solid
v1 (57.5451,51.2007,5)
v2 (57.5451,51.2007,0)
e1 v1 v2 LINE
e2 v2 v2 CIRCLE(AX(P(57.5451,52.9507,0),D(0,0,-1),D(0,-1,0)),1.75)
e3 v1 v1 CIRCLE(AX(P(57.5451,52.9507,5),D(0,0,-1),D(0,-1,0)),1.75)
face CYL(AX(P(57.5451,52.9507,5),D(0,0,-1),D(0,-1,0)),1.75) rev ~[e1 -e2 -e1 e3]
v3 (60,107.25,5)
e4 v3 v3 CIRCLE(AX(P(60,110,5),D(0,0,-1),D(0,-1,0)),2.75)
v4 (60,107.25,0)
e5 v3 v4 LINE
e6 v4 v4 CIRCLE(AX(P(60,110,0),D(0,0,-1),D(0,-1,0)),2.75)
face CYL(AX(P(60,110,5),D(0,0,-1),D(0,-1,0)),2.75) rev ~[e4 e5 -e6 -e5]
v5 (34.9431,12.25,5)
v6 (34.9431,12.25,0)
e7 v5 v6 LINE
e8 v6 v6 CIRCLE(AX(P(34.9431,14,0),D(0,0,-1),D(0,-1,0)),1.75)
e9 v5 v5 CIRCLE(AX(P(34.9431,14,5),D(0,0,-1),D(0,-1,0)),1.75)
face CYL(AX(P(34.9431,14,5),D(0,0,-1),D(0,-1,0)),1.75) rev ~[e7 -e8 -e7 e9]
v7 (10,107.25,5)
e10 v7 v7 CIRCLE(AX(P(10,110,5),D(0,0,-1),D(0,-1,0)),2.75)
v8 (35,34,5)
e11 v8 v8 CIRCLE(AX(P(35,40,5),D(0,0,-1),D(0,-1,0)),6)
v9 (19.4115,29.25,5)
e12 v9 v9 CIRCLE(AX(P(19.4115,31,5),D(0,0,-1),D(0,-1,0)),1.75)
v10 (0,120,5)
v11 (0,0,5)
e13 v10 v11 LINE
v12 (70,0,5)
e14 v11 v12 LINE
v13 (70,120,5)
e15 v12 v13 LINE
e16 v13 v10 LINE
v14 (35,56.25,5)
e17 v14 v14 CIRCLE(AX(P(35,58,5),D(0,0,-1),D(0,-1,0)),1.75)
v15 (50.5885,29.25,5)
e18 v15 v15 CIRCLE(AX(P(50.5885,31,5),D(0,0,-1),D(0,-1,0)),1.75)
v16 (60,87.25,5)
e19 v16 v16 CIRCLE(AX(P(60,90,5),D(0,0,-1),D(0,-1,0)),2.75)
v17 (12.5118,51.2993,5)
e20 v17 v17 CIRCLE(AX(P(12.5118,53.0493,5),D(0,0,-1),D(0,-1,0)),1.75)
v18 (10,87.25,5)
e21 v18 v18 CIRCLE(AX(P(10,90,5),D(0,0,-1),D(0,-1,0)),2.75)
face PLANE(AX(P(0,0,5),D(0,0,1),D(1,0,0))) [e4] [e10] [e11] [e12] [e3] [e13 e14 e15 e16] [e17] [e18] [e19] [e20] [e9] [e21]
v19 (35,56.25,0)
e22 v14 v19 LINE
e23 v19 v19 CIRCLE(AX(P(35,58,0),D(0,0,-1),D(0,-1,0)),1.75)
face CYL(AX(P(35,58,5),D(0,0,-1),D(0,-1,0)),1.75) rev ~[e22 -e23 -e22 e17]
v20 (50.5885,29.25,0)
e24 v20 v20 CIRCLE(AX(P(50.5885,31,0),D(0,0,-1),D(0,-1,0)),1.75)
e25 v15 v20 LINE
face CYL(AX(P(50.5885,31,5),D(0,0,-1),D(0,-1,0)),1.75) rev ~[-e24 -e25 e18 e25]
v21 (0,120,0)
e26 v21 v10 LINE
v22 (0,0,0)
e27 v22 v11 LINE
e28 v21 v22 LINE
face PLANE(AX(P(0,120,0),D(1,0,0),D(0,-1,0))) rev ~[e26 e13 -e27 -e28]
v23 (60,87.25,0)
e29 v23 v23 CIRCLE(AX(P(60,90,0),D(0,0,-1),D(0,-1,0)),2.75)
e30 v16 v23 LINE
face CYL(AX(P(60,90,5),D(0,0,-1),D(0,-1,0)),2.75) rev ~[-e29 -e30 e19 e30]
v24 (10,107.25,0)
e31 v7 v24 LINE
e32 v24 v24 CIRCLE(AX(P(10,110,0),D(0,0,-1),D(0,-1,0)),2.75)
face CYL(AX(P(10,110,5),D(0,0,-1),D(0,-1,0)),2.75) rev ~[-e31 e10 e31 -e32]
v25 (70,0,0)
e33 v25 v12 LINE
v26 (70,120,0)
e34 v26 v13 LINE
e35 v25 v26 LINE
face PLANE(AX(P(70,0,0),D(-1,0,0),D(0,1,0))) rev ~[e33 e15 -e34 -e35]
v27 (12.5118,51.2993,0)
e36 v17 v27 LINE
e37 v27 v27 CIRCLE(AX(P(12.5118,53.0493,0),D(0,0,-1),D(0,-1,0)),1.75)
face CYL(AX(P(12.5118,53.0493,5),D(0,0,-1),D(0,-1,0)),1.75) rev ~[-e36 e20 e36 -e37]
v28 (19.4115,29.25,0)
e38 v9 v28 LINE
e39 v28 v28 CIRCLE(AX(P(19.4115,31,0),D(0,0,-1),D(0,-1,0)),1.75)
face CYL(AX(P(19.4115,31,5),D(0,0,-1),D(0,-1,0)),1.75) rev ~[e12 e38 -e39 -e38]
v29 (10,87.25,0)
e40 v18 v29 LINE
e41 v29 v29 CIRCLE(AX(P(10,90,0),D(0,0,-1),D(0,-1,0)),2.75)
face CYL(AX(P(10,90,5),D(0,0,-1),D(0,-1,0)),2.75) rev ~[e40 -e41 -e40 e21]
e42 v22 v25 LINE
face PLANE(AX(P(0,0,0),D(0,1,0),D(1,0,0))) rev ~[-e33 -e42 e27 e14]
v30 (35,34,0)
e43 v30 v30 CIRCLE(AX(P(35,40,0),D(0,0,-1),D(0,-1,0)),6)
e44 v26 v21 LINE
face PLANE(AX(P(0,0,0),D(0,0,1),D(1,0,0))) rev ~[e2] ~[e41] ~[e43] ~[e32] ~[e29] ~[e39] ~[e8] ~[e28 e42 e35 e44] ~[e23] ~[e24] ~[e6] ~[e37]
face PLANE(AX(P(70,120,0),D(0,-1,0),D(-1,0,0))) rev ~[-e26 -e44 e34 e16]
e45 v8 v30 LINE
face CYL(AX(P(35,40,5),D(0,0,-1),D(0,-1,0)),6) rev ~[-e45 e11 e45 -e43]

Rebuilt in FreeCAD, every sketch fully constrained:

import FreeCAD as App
import Part
import Sketcher
from FreeCAD import Vector

doc = App.newDocument("Part")
body = doc.addObject("PartDesign::Body", "Body")

# Sketch on XY plane
sketch1 = body.newObject("Sketcher::SketchObject", "Sketch")
sketch1.AttachmentSupport = (doc.getObject("XY_Plane"), [""])
sketch1.MapMode = "FlatFace"
sketch1.addGeometry(Part.LineSegment(Vector(0, 120, 0), Vector(0, 0, 0)), False)
sketch1.addGeometry(Part.LineSegment(Vector(0, 0, 0), Vector(70, 0, 0)), False)
sketch1.addGeometry(Part.LineSegment(Vector(70, 0, 0), Vector(70, 120, 0)), False)
sketch1.addGeometry(Part.LineSegment(Vector(70, 120, 0), Vector(0, 120, 0)), False)
sketch1.addConstraint(Sketcher.Constraint("Coincident", 0, 2, 1, 1))
sketch1.addConstraint(Sketcher.Constraint("Coincident", 1, 2, 2, 1))
sketch1.addConstraint(Sketcher.Constraint("Coincident", 2, 2, 3, 1))
sketch1.addConstraint(Sketcher.Constraint("Coincident", 3, 2, 0, 1))
sketch1.addConstraint(Sketcher.Constraint("Vertical", 0))
sketch1.addConstraint(Sketcher.Constraint("Horizontal", 1))
sketch1.addConstraint(Sketcher.Constraint("Vertical", 2))
sketch1.addConstraint(Sketcher.Constraint("Horizontal", 3))
sketch1.addConstraint(Sketcher.Constraint("Coincident", 0, 2, -1, 1))
sketch1.addConstraint(Sketcher.Constraint("DistanceX", 1, 1, 1, 2, 70.0))
sketch1.addConstraint(Sketcher.Constraint("DistanceY", 0, 2, 0, 1, 120.0))
pad1 = body.newObject("PartDesign::Pad", "Pad")
pad1.Profile = sketch1
pad1.Length = 5

# Sketch on XY plane
sketch2 = body.newObject("Sketcher::SketchObject", "Sketch001")
sketch2.AttachmentSupport = (doc.getObject("XY_Plane"), [""])
sketch2.MapMode = "FlatFace"
sketch2.AttachmentOffset = App.Placement(Vector(0, 0, 5), App.Rotation())
sketch2.addGeometry(Part.Circle(Vector(35, 40, 0), Vector(0, 0, 1), 6), False)
sketch2.addConstraint(Sketcher.Constraint("Diameter", 0, 12.0))
sketch2.addConstraint(Sketcher.Constraint("DistanceX", -1, 1, 0, 3, 35.0))
sketch2.addConstraint(Sketcher.Constraint("DistanceY", -1, 1, 0, 3, 40.0))
doc.recompute()
hole = body.newObject("PartDesign::Hole", "Hole")
hole.Profile = sketch2
hole.ThreadType = "None"
hole.Diameter = 12
hole.DepthType = "ThroughAll"

# Sketch on XY plane
sketch3 = body.newObject("Sketcher::SketchObject", "Sketch002")
sketch3.AttachmentSupport = (doc.getObject("XY_Plane"), [""])
sketch3.MapMode = "FlatFace"
sketch3.AttachmentOffset = App.Placement(Vector(0, 0, 5), App.Rotation())
sketch3.addGeometry(Part.Circle(Vector(34.9, 14, 0), Vector(0, 0, 1), 1.8), False)
sketch3.addGeometry(Part.Circle(Vector(35, 40, 0), Vector(0, 0, 1), 1.8), False)
sketch3.addGeometry(Part.Circle(Vector(57.5, 53, 0), Vector(0, 0, 1), 1.8), False)
sketch3.addGeometry(Part.Circle(Vector(12.5, 53, 0), Vector(0, 0, 1), 1.8), False)
sketch3.addConstraint(Sketcher.Constraint("Equal", 0, 1))
sketch3.addConstraint(Sketcher.Constraint("Equal", 1, 2))
sketch3.addConstraint(Sketcher.Constraint("Equal", 2, 3))
sketch3.addConstraint(Sketcher.Constraint("Diameter", 0, 3.5))
sketch3.addConstraint(Sketcher.Constraint("DistanceY", -1, 1, 0, 3, 14.0))
sketch3.addConstraint(Sketcher.Constraint("DistanceX", -1, 1, 1, 3, 35.0))
sketch3.addConstraint(Sketcher.Constraint("DistanceY", -1, 1, 1, 3, 40.0))
sketch3.addConstraint(Sketcher.Constraint("DistanceX", -1, 1, 0, 3, 34.943))
sketch3.addConstraint(Sketcher.Constraint("DistanceX", -1, 1, 2, 3, 57.545))
sketch3.addConstraint(Sketcher.Constraint("DistanceY", -1, 1, 2, 3, 52.9507))
sketch3.addConstraint(Sketcher.Constraint("DistanceX", -1, 1, 3, 3, 12.5118))
sketch3.addConstraint(Sketcher.Constraint("DistanceY", -1, 1, 3, 3, 53.0493))
doc.recompute()
hole2 = body.newObject("PartDesign::Hole", "Hole001")
hole2.Profile = sketch3
hole2.ThreadType = "None"
hole2.Diameter = 3.5
hole2.DepthType = "ThroughAll"

# Sketch on XY plane
sketch4 = body.newObject("Sketcher::SketchObject", "Sketch003")
sketch4.AttachmentSupport = (doc.getObject("XY_Plane"), [""])
sketch4.MapMode = "FlatFace"
sketch4.AttachmentOffset = App.Placement(Vector(0, 0, 5), App.Rotation())
sketch4.addGeometry(Part.Circle(Vector(35, 40, 0), Vector(0, 0, 1), 1.8), False)
sketch4.addGeometry(Part.Circle(Vector(35, 58, 0), Vector(0, 0, 1), 1.8), False)
sketch4.addGeometry(Part.Circle(Vector(19.4, 31, 0), Vector(0, 0, 1), 1.8), False)
sketch4.addGeometry(Part.Circle(Vector(50.6, 31, 0), Vector(0, 0, 1), 1.8), False)
sketch4.addConstraint(Sketcher.Constraint("Equal", 0, 1))
sketch4.addConstraint(Sketcher.Constraint("Equal", 1, 2))
sketch4.addConstraint(Sketcher.Constraint("Equal", 2, 3))
sketch4.addConstraint(Sketcher.Constraint("Horizontal", 2, 3, 3, 3))
sketch4.addConstraint(Sketcher.Constraint("Vertical", 0, 3, 1, 3))
sketch4.addConstraint(Sketcher.Constraint("Diameter", 0, 3.5))
sketch4.addConstraint(Sketcher.Constraint("DistanceX", -1, 1, 0, 3, 35.0))
sketch4.addConstraint(Sketcher.Constraint("DistanceY", -1, 1, 0, 3, 40.0))
sketch4.addConstraint(Sketcher.Constraint("DistanceY", -1, 1, 1, 3, 58.0))
sketch4.addConstraint(Sketcher.Constraint("DistanceY", -1, 1, 2, 3, 31.0))
sketch4.addConstraint(Sketcher.Constraint("DistanceX", 2, 3, 3, 3, 31.177))
sketch4.addConstraint(Sketcher.Constraint("DistanceX", -1, 1, 2, 3, 19.4115))
doc.recompute()
hole3 = body.newObject("PartDesign::Hole", "Hole002")
hole3.Profile = sketch4
hole3.ThreadType = "None"
hole3.Diameter = 3.5
hole3.DepthType = "ThroughAll"

# Sketch on XY plane
sketch5 = body.newObject("Sketcher::SketchObject", "Sketch004")
sketch5.AttachmentSupport = (doc.getObject("XY_Plane"), [""])
sketch5.MapMode = "FlatFace"
sketch5.AttachmentOffset = App.Placement(Vector(0, 0, 5), App.Rotation())
sketch5.addGeometry(Part.Circle(Vector(35, 40, 0), Vector(0, 0, 1), 2.8), False)
sketch5.addGeometry(Part.Circle(Vector(10, 110, 0), Vector(0, 0, 1), 2.8), False)
sketch5.addGeometry(Part.Circle(Vector(60, 110, 0), Vector(0, 0, 1), 2.8), False)
sketch5.addGeometry(Part.Circle(Vector(10, 90, 0), Vector(0, 0, 1), 2.8), False)
sketch5.addGeometry(Part.Circle(Vector(60, 90, 0), Vector(0, 0, 1), 2.8), False)
sketch5.addConstraint(Sketcher.Constraint("Equal", 0, 1))
sketch5.addConstraint(Sketcher.Constraint("Equal", 1, 2))
sketch5.addConstraint(Sketcher.Constraint("Equal", 2, 3))
sketch5.addConstraint(Sketcher.Constraint("Equal", 3, 4))
sketch5.addConstraint(Sketcher.Constraint("Horizontal", 1, 3, 2, 3))
sketch5.addConstraint(Sketcher.Constraint("Horizontal", 3, 3, 4, 3))
sketch5.addConstraint(Sketcher.Constraint("Vertical", 1, 3, 3, 3))
sketch5.addConstraint(Sketcher.Constraint("Vertical", 2, 3, 4, 3))
sketch5.addConstraint(Sketcher.Constraint("Diameter", 0, 5.5))
sketch5.addConstraint(Sketcher.Constraint("DistanceX", -1, 1, 0, 3, 35.0))
sketch5.addConstraint(Sketcher.Constraint("DistanceY", -1, 1, 0, 3, 40.0))
sketch5.addConstraint(Sketcher.Constraint("DistanceX", -1, 1, 1, 3, 10.0))
sketch5.addConstraint(Sketcher.Constraint("DistanceY", -1, 1, 1, 3, 110.0))
sketch5.addConstraint(Sketcher.Constraint("DistanceX", -1, 1, 2, 3, 60.0))
sketch5.addConstraint(Sketcher.Constraint("DistanceY", -1, 1, 3, 3, 90.0))
doc.recompute()
hole4 = body.newObject("PartDesign::Hole", "Hole003")
hole4.Profile = sketch5
hole4.ThreadType = "None"
hole4.Diameter = 5.5
hole4.DepthType = "ThroughAll"

doc.recompute()
